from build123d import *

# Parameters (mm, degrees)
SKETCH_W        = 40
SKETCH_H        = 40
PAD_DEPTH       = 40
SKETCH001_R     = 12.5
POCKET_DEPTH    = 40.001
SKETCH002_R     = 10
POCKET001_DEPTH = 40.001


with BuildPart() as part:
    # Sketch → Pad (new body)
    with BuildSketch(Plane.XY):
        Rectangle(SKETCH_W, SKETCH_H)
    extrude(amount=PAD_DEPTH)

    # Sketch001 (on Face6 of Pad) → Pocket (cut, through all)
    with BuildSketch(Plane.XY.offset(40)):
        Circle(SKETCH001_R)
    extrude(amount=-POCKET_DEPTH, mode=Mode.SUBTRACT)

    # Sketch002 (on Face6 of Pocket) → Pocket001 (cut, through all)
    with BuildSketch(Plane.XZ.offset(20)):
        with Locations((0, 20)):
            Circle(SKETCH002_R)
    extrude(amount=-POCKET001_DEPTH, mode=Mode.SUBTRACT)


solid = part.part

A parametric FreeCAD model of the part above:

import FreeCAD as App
import Part
import Sketcher

doc = App.newDocument("Part")
body = doc.addObject("PartDesign::Body", "Body")

# Sketch on XY plane
sketch1 = body.newObject("Sketcher::SketchObject", "Sketch")
sketch1.AttachmentSupport = (doc.getObject("XY_Plane"), [""])
sketch1.MapMode = "FlatFace"
sketch1.addGeometry([
    Part.LineSegment(App.Vector(-20, 20, 0), App.Vector(-20, -20, 0)),
    Part.LineSegment(App.Vector(-20, -20, 0), App.Vector(20, -20, 0)),
    Part.LineSegment(App.Vector(20, -20, 0), App.Vector(20, 20, 0)),
    Part.LineSegment(App.Vector(20, 20, 0), App.Vector(-20, 20, 0)),
], False)
sketch1.addConstraint([
    Sketcher.Constraint("Coincident", 0, 2, 1, 1),
    Sketcher.Constraint("Coincident", 1, 2, 2, 1),
    Sketcher.Constraint("Coincident", 2, 2, 3, 1),
    Sketcher.Constraint("Coincident", 3, 2, 0, 1),
    Sketcher.Constraint("Vertical", 0),
    Sketcher.Constraint("Horizontal", 1),
    Sketcher.Constraint("Vertical", 2),
    Sketcher.Constraint("Horizontal", 3),
    Sketcher.Constraint("Symmetric", 0, 2, 2, 2, -1, 1),
    Sketcher.Constraint("Equal", 3, 0),
    Sketcher.Constraint("DistanceX", 1, 1, 1, 2, 40.0),
])
pad1 = body.newObject("PartDesign::Pad", "Pad")
pad1.Profile = sketch1
pad1.Length = 40

# Sketch on XY plane
sketch2 = body.newObject("Sketcher::SketchObject", "Sketch001")
sketch2.AttachmentSupport = (doc.getObject("XY_Plane"), [""])
sketch2.MapMode = "FlatFace"
sketch2.AttachmentOffset = App.Placement(App.Vector(0, 0, 40), App.Rotation())
sketch2.addGeometry(Part.Circle(App.Vector(0, 0, 0), App.Vector(0, 0, 1), 12), False)
sketch2.addConstraint([
    Sketcher.Constraint("Coincident", 0, 3, -1, 1),
    Sketcher.Constraint("Diameter", 0, 25.0),
])
pocket1 = body.newObject("PartDesign::Pocket", "Pocket")
pocket1.Profile = sketch2
pocket1.Type = "ThroughAll"

# Sketch on XZ plane
sketch3 = body.newObject("Sketcher::SketchObject", "Sketch002")
sketch3.AttachmentSupport = (doc.getObject("XZ_Plane"), [""])
sketch3.MapMode = "FlatFace"
sketch3.AttachmentOffset = App.Placement(App.Vector(0, 0, 20), App.Rotation())
sketch3.addGeometry(Part.Circle(App.Vector(0, 20, 0), App.Vector(0, 0, 1), 10), False)
sketch3.addConstraint([
    Sketcher.Constraint("PointOnObject", 0, 3, -2),
    Sketcher.Constraint("Diameter", 0, 20.0),
    Sketcher.Constraint("DistanceY", -1, 1, 0, 3, 20.0),
])
pocket2 = body.newObject("PartDesign::Pocket", "Pocket001")
pocket2.Profile = sketch3
pocket2.Type = "ThroughAll"

doc.recompute()
